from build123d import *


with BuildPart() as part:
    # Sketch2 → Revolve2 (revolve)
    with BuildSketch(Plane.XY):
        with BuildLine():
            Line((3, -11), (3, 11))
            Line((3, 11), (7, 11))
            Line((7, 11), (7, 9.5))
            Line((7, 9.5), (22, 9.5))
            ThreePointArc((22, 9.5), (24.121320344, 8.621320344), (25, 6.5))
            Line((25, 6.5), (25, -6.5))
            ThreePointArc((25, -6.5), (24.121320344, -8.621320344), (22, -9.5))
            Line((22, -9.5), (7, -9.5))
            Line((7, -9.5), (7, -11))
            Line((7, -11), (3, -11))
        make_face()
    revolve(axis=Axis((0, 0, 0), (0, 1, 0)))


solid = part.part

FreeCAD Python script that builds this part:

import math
import FreeCAD as App
import Part
import Sketcher
from FreeCAD import Vector

doc = App.newDocument("Part")
body = doc.addObject("PartDesign::Body", "Body")

# Sketch on XY plane
sketch1 = doc.addObject("Sketcher::SketchObject", "Sketch")
body.addObject(sketch1)
sketch1.AttachmentSupport = (doc.XY_Plane, [""])
sketch1.MapMode = "FlatFace"
sketch1.addGeometry([
    Part.LineSegment(Vector(3, 11, 0), Vector(3, -11, 0)),  # 0
    Part.LineSegment(Vector(3, -11, 0), Vector(7, -11, 0)),  # 1
    Part.LineSegment(Vector(7, -11, 0), Vector(7, -9.5, 0)),  # 2
    Part.LineSegment(Vector(7, -9.5, 0), Vector(22, -9.5, 0)),  # 3
    Part.ArcOfCircle(Part.Circle(Vector(22, -6.5, 0), Vector(0, 0, 1), 3), math.radians(-90), math.radians(0)),  # 4
    Part.LineSegment(Vector(25, -6.5, 0), Vector(25, 6.5, 0)),  # 5
    Part.ArcOfCircle(Part.Circle(Vector(22, 6.5, 0), Vector(0, 0, 1), 3), math.radians(0), math.radians(90)),  # 6
    Part.LineSegment(Vector(22, 9.5, 0), Vector(7, 9.5, 0)),  # 7
    Part.LineSegment(Vector(7, 9.5, 0), Vector(7, 11, 0)),  # 8
    Part.LineSegment(Vector(7, 11, 0), Vector(3, 11, 0)),  # 9
], False)
sketch1.addConstraint([
    Sketcher.Constraint("Coincident", 0, 2, 1, 1),
    Sketcher.Constraint("Coincident", 1, 2, 2, 1),
    Sketcher.Constraint("Coincident", 2, 2, 3, 1),
    Sketcher.Constraint("Tangent", 3, 2, 4, 1),
    Sketcher.Constraint("Tangent", 4, 2, 5, 1),
    Sketcher.Constraint("Tangent", 5, 2, 6, 1),
    Sketcher.Constraint("Tangent", 6, 2, 7, 1),
    Sketcher.Constraint("Coincident", 7, 2, 8, 1),
    Sketcher.Constraint("Coincident", 8, 2, 9, 1),
    Sketcher.Constraint("Coincident", 9, 2, 0, 1),
    Sketcher.Constraint("Vertical", 0),
    Sketcher.Constraint("Horizontal", 1),
    Sketcher.Constraint("Vertical", 2),
    Sketcher.Constraint("Horizontal", 3),
    Sketcher.Constraint("Vertical", 5),
    Sketcher.Constraint("Horizontal", 7),
    Sketcher.Constraint("Vertical", 8),
    Sketcher.Constraint("Horizontal", 9),
    Sketcher.Constraint("Equal", 4, 6),
    Sketcher.Constraint("Symmetric", 2, 2, 7, 2, -1),
    Sketcher.Constraint("Equal", 2, 8),
    Sketcher.Constraint("Radius", 4, 3.0),
    Sketcher.Constraint("DistanceX", 1, 1, 1, 2, 4.0),
    Sketcher.Constraint("DistanceX", 3, 1, 3, 2, 15.0),
    Sketcher.Constraint("DistanceY", 0, 2, 0, 1, 22.0),
    Sketcher.Constraint("DistanceY", 5, 1, 5, 2, 13.0),
    Sketcher.Constraint("DistanceX", -1, 1, 4, 3, 22.0),
])
revolution = doc.addObject("PartDesign::Revolution", "Revolution")
body.addObject(revolution)
revolution.Profile = sketch1
revolution.ReferenceAxis = (sketch1, ["V_Axis"])
revolution.Angle = 360

doc.recompute()
